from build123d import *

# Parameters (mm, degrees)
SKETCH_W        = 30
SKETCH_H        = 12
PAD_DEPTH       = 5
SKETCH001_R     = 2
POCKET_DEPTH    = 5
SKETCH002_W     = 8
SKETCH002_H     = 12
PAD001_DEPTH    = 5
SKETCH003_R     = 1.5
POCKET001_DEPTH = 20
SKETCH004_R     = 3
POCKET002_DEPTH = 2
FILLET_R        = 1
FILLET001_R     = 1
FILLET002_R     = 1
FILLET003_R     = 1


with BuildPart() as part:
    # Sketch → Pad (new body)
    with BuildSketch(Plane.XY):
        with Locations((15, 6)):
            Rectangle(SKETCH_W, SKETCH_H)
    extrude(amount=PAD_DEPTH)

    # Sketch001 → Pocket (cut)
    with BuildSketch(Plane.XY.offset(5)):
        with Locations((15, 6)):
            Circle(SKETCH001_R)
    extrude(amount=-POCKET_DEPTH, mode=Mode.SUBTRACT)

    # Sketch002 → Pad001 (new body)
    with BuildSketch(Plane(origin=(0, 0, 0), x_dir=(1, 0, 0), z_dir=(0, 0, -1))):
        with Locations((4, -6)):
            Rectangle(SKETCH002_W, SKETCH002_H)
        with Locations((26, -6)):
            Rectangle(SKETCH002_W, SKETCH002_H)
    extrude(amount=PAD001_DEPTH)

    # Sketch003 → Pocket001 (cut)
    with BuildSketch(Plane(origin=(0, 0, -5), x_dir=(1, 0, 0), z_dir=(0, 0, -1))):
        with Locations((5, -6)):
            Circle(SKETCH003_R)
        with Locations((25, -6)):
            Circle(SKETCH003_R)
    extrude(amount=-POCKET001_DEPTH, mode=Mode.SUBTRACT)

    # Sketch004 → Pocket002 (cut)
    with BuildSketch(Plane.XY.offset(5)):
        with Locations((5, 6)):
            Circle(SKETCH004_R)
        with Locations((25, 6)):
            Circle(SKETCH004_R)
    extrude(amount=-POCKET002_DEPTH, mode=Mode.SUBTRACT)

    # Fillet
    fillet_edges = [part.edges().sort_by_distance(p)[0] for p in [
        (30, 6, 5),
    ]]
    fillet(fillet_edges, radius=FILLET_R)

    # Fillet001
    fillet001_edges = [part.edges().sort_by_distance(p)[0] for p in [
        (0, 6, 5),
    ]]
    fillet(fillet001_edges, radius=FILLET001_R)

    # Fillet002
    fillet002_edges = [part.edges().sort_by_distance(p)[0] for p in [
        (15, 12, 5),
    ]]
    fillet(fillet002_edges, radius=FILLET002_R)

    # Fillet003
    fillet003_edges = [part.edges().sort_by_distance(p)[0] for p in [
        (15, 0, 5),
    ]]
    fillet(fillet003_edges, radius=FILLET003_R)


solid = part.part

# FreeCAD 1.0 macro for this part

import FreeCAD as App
import Part
import Sketcher


def edges_at(feature, points):
    """Names of the edges that pass closest to the given points."""
    edges = feature.Shape.Edges
    near = lambda p: min(range(len(edges)), key=lambda i: edges[i].distToShape(Part.Vertex(*p))[0])
    return sorted({f"Edge{near(p) + 1}" for p in points})

doc = App.newDocument("Part")
body = doc.addObject("PartDesign::Body", "Body")

# Sketch on XY plane
sketch1 = doc.addObject("Sketcher::SketchObject", "Sketch")
body.addObject(sketch1)
sketch1.AttachmentSupport = (doc.XY_Plane, [""])
sketch1.MapMode = "FlatFace"
sketch1.addGeometry([
    Part.LineSegment(App.Vector(0, 12, 0), App.Vector(0, 0, 0)),
    Part.LineSegment(App.Vector(0, 0, 0), App.Vector(30, 0, 0)),
    Part.LineSegment(App.Vector(30, 0, 0), App.Vector(30, 12, 0)),
    Part.LineSegment(App.Vector(30, 12, 0), App.Vector(0, 12, 0)),
], False)
sketch1.addConstraint([
    Sketcher.Constraint("Coincident", 0, 2, 1, 1),
    Sketcher.Constraint("Coincident", 1, 2, 2, 1),
    Sketcher.Constraint("Coincident", 2, 2, 3, 1),
    Sketcher.Constraint("Coincident", 3, 2, 0, 1),
    Sketcher.Constraint("Vertical", 0),
    Sketcher.Constraint("Horizontal", 1),
    Sketcher.Constraint("Vertical", 2),
    Sketcher.Constraint("Horizontal", 3),
    Sketcher.Constraint("Coincident", 0, 2, -1, 1),
    Sketcher.Constraint("DistanceX", 1, 1, 1, 2, 30.0),
    Sketcher.Constraint("DistanceY", 0, 2, 0, 1, 12.0),
])
pad1 = doc.addObject("PartDesign::Pad", "Pad")
body.addObject(pad1)
pad1.Profile = sketch1
pad1.Length = 5

# Sketch on XY plane
sketch2 = doc.addObject("Sketcher::SketchObject", "Sketch001")
body.addObject(sketch2)
sketch2.AttachmentSupport = (doc.XY_Plane, [""])
sketch2.MapMode = "FlatFace"
sketch2.AttachmentOffset = App.Placement(App.Vector(0, 0, 5), App.Rotation())
sketch2.addGeometry(Part.Circle(App.Vector(15, 6, 0), App.Vector(0, 0, 1), 2), False)
sketch2.addConstraint([
    Sketcher.Constraint("Diameter", 0, 4.0),
    Sketcher.Constraint("DistanceX", -1, 1, 0, 3, 15.0),
    Sketcher.Constraint("DistanceY", -1, 1, 0, 3, 6.0),
])
pocket1 = doc.addObject("PartDesign::Pocket", "Pocket")
body.addObject(pocket1)
pocket1.Profile = sketch2
pocket1.Length = 5

# Sketch on XY plane
sketch3 = doc.addObject("Sketcher::SketchObject", "Sketch002")
body.addObject(sketch3)
sketch3.AttachmentSupport = (doc.XY_Plane, [""])
sketch3.MapMode = "FlatFace"
sketch3.addGeometry([
    Part.LineSegment(App.Vector(0, 0, 0), App.Vector(0, 12, 0)),  # 0
    Part.LineSegment(App.Vector(0, 12, 0), App.Vector(8, 12, 0)),  # 1
    Part.LineSegment(App.Vector(8, 12, 0), App.Vector(8, 0, 0)),  # 2
    Part.LineSegment(App.Vector(8, 0, 0), App.Vector(0, 0, 0)),  # 3
    Part.LineSegment(App.Vector(22, 0, 0), App.Vector(22, 12, 0)),  # 4
    Part.LineSegment(App.Vector(22, 12, 0), App.Vector(30, 12, 0)),  # 5
    Part.LineSegment(App.Vector(30, 12, 0), App.Vector(30, 0, 0)),  # 6
    Part.LineSegment(App.Vector(30, 0, 0), App.Vector(22, 0, 0)),  # 7
], False)
sketch3.addConstraint([
    Sketcher.Constraint("Coincident", 0, 2, 1, 1),
    Sketcher.Constraint("Coincident", 1, 2, 2, 1),
    Sketcher.Constraint("Coincident", 2, 2, 3, 1),
    Sketcher.Constraint("Coincident", 3, 2, 0, 1),
    Sketcher.Constraint("Coincident", 4, 2, 5, 1),
    Sketcher.Constraint("Coincident", 5, 2, 6, 1),
    Sketcher.Constraint("Coincident", 6, 2, 7, 1),
    Sketcher.Constraint("Coincident", 7, 2, 4, 1),
    Sketcher.Constraint("Vertical", 0),
    Sketcher.Constraint("Horizontal", 1),
    Sketcher.Constraint("Vertical", 2),
    Sketcher.Constraint("Horizontal", 3),
    Sketcher.Constraint("Vertical", 4),
    Sketcher.Constraint("Horizontal", 5),
    Sketcher.Constraint("Vertical", 6),
    Sketcher.Constraint("Horizontal", 7),
    Sketcher.Constraint("Coincident", 3, 2, -1, 1),
    Sketcher.Constraint("PointOnObject", 6, 2, -1),
    Sketcher.Constraint("Horizontal", 1, 2, 4, 2),
    Sketcher.Constraint("Equal", 3, 5),
    Sketcher.Constraint("DistanceX", 1, 1, 1, 2, 8.0),
    Sketcher.Constraint("DistanceY", 0, 1, 0, 2, 12.0),
    Sketcher.Constraint("DistanceX", -1, 1, 4, 2, 22.0),
])
pad2 = doc.addObject("PartDesign::Pad", "Pad001")
body.addObject(pad2)
pad2.Profile = sketch3
pad2.Length = 5
pad2.Reversed = True

# Sketch on XY plane
sketch4 = doc.addObject("Sketcher::SketchObject", "Sketch003")
body.addObject(sketch4)
sketch4.AttachmentSupport = (doc.XY_Plane, [""])
sketch4.MapMode = "FlatFace"
sketch4.AttachmentOffset = App.Placement(App.Vector(0, 0, -5), App.Rotation())
sketch4.addGeometry([
    Part.Circle(App.Vector(5, 6, 0), App.Vector(0, 0, 1), 1.5),
    Part.Circle(App.Vector(25, 6, 0), App.Vector(0, 0, 1), 1.5),
], False)
sketch4.addConstraint([
    Sketcher.Constraint("Equal", 0, 1),
    Sketcher.Constraint("Horizontal", 0, 3, 1, 3),
    Sketcher.Constraint("Diameter", 0, 3.0),
    Sketcher.Constraint("DistanceX", -1, 1, 0, 3, 5.0),
    Sketcher.Constraint("DistanceY", -1, 1, 0, 3, 6.0),
    Sketcher.Constraint("DistanceX", -1, 1, 1, 3, 25.0),
])
pocket2 = doc.addObject("PartDesign::Pocket", "Pocket001")
body.addObject(pocket2)
pocket2.Profile = sketch4
pocket2.Length = 20
pocket2.Reversed = True

# Sketch on XY plane
sketch5 = doc.addObject("Sketcher::SketchObject", "Sketch004")
body.addObject(sketch5)
sketch5.AttachmentSupport = (doc.XY_Plane, [""])
sketch5.MapMode = "FlatFace"
sketch5.AttachmentOffset = App.Placement(App.Vector(0, 0, 5), App.Rotation())
sketch5.addGeometry([
    Part.Circle(App.Vector(5, 6, 0), App.Vector(0, 0, 1), 3),
    Part.Circle(App.Vector(25, 6, 0), App.Vector(0, 0, 1), 3),
], False)
sketch5.addConstraint([
    Sketcher.Constraint("Equal", 0, 1),
    Sketcher.Constraint("Horizontal", 0, 3, 1, 3),
    Sketcher.Constraint("Diameter", 0, 6.0),
    Sketcher.Constraint("DistanceX", -1, 1, 0, 3, 5.0),
    Sketcher.Constraint("DistanceY", -1, 1, 0, 3, 6.0),
    Sketcher.Constraint("DistanceX", -1, 1, 1, 3, 25.0),
])
pocket3 = doc.addObject("PartDesign::Pocket", "Pocket002")
body.addObject(pocket3)
pocket3.Profile = sketch5
pocket3.Length = 2
doc.recompute()

fillet = doc.addObject("PartDesign::Fillet", "Fillet")
body.addObject(fillet)
fillet.Base = (pocket3, edges_at(pocket3, [(30, 6, 5)]))
fillet.Radius = 1
doc.recompute()

fillet2 = doc.addObject("PartDesign::Fillet", "Fillet001")
body.addObject(fillet2)
fillet2.Base = (fillet, edges_at(fillet, [(0, 6, 5)]))
fillet2.Radius = 1
doc.recompute()

fillet3 = doc.addObject("PartDesign::Fillet", "Fillet002")
body.addObject(fillet3)
fillet3.Base = (fillet2, edges_at(fillet2, [(15, 12, 5)]))
fillet3.Radius = 1
doc.recompute()

fillet4 = doc.addObject("PartDesign::Fillet", "Fillet003")
body.addObject(fillet4)
fillet4.Base = (fillet3, edges_at(fillet3, [(15, 0, 5)]))
fillet4.Radius = 1

doc.recompute()
